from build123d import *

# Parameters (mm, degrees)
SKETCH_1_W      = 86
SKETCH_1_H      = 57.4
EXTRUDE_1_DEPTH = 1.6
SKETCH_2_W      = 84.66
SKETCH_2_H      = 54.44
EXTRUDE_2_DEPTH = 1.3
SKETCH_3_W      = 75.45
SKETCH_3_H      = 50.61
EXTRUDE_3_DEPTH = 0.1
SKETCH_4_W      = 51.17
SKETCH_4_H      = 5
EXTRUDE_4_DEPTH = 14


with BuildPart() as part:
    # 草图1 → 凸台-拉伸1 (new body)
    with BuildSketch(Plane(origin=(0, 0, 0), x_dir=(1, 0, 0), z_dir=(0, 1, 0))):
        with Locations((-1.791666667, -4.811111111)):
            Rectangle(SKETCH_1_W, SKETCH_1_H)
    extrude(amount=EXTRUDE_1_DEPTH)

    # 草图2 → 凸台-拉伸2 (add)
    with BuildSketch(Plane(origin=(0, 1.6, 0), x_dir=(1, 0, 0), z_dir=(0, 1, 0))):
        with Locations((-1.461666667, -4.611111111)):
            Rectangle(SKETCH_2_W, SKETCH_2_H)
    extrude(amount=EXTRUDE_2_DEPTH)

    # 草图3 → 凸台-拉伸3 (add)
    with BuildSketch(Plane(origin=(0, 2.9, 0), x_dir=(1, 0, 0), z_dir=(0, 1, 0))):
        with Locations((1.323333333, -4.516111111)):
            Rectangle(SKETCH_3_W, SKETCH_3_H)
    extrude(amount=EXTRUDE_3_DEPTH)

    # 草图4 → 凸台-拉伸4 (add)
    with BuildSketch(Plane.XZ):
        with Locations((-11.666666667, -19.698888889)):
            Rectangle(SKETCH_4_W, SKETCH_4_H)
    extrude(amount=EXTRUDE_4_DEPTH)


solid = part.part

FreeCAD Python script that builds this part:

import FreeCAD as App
import Part
import Sketcher
from FreeCAD import Vector

doc = App.newDocument("Part")
params = doc.addObject("Spreadsheet::Sheet", "Params")
for row, (alias, value) in enumerate([
    ("sketch1_width", "86 mm"),
    ("sketch1_height", "57.4 mm"),
    ("pad1_length", "1.6 mm"),
    ("sketch2_width", "84.66 mm"),
    ("sketch2_height", "54.44 mm"),
    ("pad2_length", "1.3 mm"),
    ("sketch3_width", "75.45 mm"),
    ("sketch3_height", "50.61 mm"),
    ("pad3_length", "0.1 mm"),
    ("sketch4_height", "5 mm"),
    ("sketch4_width", "51.17 mm"),
    ("pad4_length", "14 mm"),
], start=1):
    params.set(f"A{row}", alias)
    params.set(f"B{row}", "=" + value)
    params.setAlias(f"B{row}", alias)

body = doc.addObject("PartDesign::Body", "Body")

sketch1 = body.newObject("Sketcher::SketchObject", "Sketch")
sketch1.AttachmentSupport = (doc.getObject("XZ_Plane"), [""])
sketch1.MapMode = "FlatFace"
sketch1.addGeometry([
    Part.LineSegment(Vector(-44.791667, -23.888889, 0), Vector(-44.791667, 33.511111, 0)),
    Part.LineSegment(Vector(-44.791667, 33.511111, 0), Vector(41.208333, 33.511111, 0)),
    Part.LineSegment(Vector(41.208333, 33.511111, 0), Vector(41.208333, -23.888889, 0)),
    Part.LineSegment(Vector(41.208333, -23.888889, 0), Vector(-44.791667, -23.888889, 0)),
], False)
sketch1.addConstraint([
    Sketcher.Constraint("Coincident", 0, 2, 1, 1),
    Sketcher.Constraint("Coincident", 1, 2, 2, 1),
    Sketcher.Constraint("Coincident", 2, 2, 3, 1),
    Sketcher.Constraint("Coincident", 3, 2, 0, 1),
    Sketcher.Constraint("Vertical", 0),
    Sketcher.Constraint("Horizontal", 1),
    Sketcher.Constraint("Vertical", 2),
    Sketcher.Constraint("Horizontal", 3),
    Sketcher.Constraint("DistanceX", 1, 1, 1, 2, 86.0),
    Sketcher.Constraint("DistanceY", 0, 1, 0, 2, 57.4),
    Sketcher.Constraint("DistanceY", -1, 1, 0, 2, 33.511111),
    Sketcher.Constraint("DistanceX", 0, 2, -1, 1, 44.791667),
])
sketch1.setExpression("Constraints[8]", "Params.sketch1_width")
sketch1.setExpression("Constraints[9]", "Params.sketch1_height")
pad1 = body.newObject("PartDesign::Pad", "Pad")
pad1.Profile = sketch1
pad1.setExpression("Length", "Params.pad1_length")
pad1.Reversed = True

sketch2 = body.newObject("Sketcher::SketchObject", "Sketch001")
sketch2.AttachmentSupport = (doc.getObject("XZ_Plane"), [""])
sketch2.MapMode = "FlatFace"
sketch2.AttachmentOffset = App.Placement(Vector(0, 0, -1.6), App.Rotation())
sketch2.addGeometry([
    Part.LineSegment(Vector(-43.791667, -22.608889, 0), Vector(-43.791667, 31.831111, 0)),
    Part.LineSegment(Vector(-43.791667, 31.831111, 0), Vector(40.868333, 31.831111, 0)),
    Part.LineSegment(Vector(40.868333, 31.831111, 0), Vector(40.868333, -22.608889, 0)),
    Part.LineSegment(Vector(40.868333, -22.608889, 0), Vector(-43.791667, -22.608889, 0)),
], False)
sketch2.addConstraint([
    Sketcher.Constraint("Coincident", 0, 2, 1, 1),
    Sketcher.Constraint("Coincident", 1, 2, 2, 1),
    Sketcher.Constraint("Coincident", 2, 2, 3, 1),
    Sketcher.Constraint("Coincident", 3, 2, 0, 1),
    Sketcher.Constraint("Vertical", 0),
    Sketcher.Constraint("Horizontal", 1),
    Sketcher.Constraint("Vertical", 2),
    Sketcher.Constraint("Horizontal", 3),
    Sketcher.Constraint("DistanceX", 1, 1, 1, 2, 84.66),
    Sketcher.Constraint("DistanceY", 0, 1, 0, 2, 54.44),
    Sketcher.Constraint("DistanceY", -1, 1, 0, 2, 31.831111),
    Sketcher.Constraint("DistanceX", 0, 2, -1, 1, 43.791667),
])
sketch2.setExpression("Constraints[8]", "Params.sketch2_width")
sketch2.setExpression("Constraints[9]", "Params.sketch2_height")
pad2 = body.newObject("PartDesign::Pad", "Pad001")
pad2.Profile = sketch2
pad2.setExpression("Length", "Params.pad2_length")
pad2.Reversed = True

sketch3 = body.newObject("Sketcher::SketchObject", "Sketch002")
sketch3.AttachmentSupport = (doc.getObject("XZ_Plane"), [""])
sketch3.MapMode = "FlatFace"
sketch3.AttachmentOffset = App.Placement(Vector(0, 0, -2.9), App.Rotation())
sketch3.addGeometry([
    Part.LineSegment(Vector(-36.401667, -20.788889, 0), Vector(-36.401667, 29.821111, 0)),
    Part.LineSegment(Vector(-36.401667, 29.821111, 0), Vector(39.048333, 29.821111, 0)),
    Part.LineSegment(Vector(39.048333, 29.821111, 0), Vector(39.048333, -20.788889, 0)),
    Part.LineSegment(Vector(39.048333, -20.788889, 0), Vector(-36.401667, -20.788889, 0)),
], False)
sketch3.addConstraint([
    Sketcher.Constraint("Coincident", 0, 2, 1, 1),
    Sketcher.Constraint("Coincident", 1, 2, 2, 1),
    Sketcher.Constraint("Coincident", 2, 2, 3, 1),
    Sketcher.Constraint("Coincident", 3, 2, 0, 1),
    Sketcher.Constraint("Vertical", 0),
    Sketcher.Constraint("Horizontal", 1),
    Sketcher.Constraint("Vertical", 2),
    Sketcher.Constraint("Horizontal", 3),
    Sketcher.Constraint("DistanceX", 1, 1, 1, 2, 75.45),
    Sketcher.Constraint("DistanceY", 0, 1, 0, 2, 50.61),
    Sketcher.Constraint("DistanceY", -1, 1, 0, 2, 29.821111),
    Sketcher.Constraint("DistanceX", 0, 2, -1, 1, 36.401667),
])
sketch3.setExpression("Constraints[8]", "Params.sketch3_width")
sketch3.setExpression("Constraints[9]", "Params.sketch3_height")
pad3 = body.newObject("PartDesign::Pad", "Pad002")
pad3.Profile = sketch3
pad3.setExpression("Length", "Params.pad3_length")
pad3.Reversed = True

sketch4 = body.newObject("Sketcher::SketchObject", "Sketch003")
sketch4.AttachmentSupport = (doc.getObject("XZ_Plane"), [""])
sketch4.MapMode = "FlatFace"
sketch4.addGeometry([
    Part.LineSegment(Vector(-37.251667, -17.198889, 0), Vector(-37.251667, -22.198889, 0)),
    Part.LineSegment(Vector(-37.251667, -22.198889, 0), Vector(13.918333, -22.198889, 0)),
    Part.LineSegment(Vector(13.918333, -22.198889, 0), Vector(13.918333, -17.198889, 0)),
    Part.LineSegment(Vector(13.918333, -17.198889, 0), Vector(-37.251667, -17.198889, 0)),
], False)
sketch4.addConstraint([
    Sketcher.Constraint("Coincident", 0, 2, 1, 1),
    Sketcher.Constraint("Coincident", 1, 2, 2, 1),
    Sketcher.Constraint("Coincident", 2, 2, 3, 1),
    Sketcher.Constraint("Coincident", 3, 2, 0, 1),
    Sketcher.Constraint("Vertical", 0),
    Sketcher.Constraint("Horizontal", 1),
    Sketcher.Constraint("Vertical", 2),
    Sketcher.Constraint("Horizontal", 3),
    Sketcher.Constraint("DistanceY", 0, 2, 0, 1, 5.0),
    Sketcher.Constraint("DistanceX", 1, 1, 1, 2, 51.17),
    Sketcher.Constraint("DistanceY", 0, 2, -1, 1, 22.198889),
    Sketcher.Constraint("DistanceX", 0, 2, -1, 1, 37.251667),
])
sketch4.setExpression("Constraints[8]", "Params.sketch4_height")
sketch4.setExpression("Constraints[9]", "Params.sketch4_width")
pad4 = body.newObject("PartDesign::Pad", "Pad003")
pad4.Profile = sketch4
pad4.setExpression("Length", "Params.pad4_length")

doc.recompute()
